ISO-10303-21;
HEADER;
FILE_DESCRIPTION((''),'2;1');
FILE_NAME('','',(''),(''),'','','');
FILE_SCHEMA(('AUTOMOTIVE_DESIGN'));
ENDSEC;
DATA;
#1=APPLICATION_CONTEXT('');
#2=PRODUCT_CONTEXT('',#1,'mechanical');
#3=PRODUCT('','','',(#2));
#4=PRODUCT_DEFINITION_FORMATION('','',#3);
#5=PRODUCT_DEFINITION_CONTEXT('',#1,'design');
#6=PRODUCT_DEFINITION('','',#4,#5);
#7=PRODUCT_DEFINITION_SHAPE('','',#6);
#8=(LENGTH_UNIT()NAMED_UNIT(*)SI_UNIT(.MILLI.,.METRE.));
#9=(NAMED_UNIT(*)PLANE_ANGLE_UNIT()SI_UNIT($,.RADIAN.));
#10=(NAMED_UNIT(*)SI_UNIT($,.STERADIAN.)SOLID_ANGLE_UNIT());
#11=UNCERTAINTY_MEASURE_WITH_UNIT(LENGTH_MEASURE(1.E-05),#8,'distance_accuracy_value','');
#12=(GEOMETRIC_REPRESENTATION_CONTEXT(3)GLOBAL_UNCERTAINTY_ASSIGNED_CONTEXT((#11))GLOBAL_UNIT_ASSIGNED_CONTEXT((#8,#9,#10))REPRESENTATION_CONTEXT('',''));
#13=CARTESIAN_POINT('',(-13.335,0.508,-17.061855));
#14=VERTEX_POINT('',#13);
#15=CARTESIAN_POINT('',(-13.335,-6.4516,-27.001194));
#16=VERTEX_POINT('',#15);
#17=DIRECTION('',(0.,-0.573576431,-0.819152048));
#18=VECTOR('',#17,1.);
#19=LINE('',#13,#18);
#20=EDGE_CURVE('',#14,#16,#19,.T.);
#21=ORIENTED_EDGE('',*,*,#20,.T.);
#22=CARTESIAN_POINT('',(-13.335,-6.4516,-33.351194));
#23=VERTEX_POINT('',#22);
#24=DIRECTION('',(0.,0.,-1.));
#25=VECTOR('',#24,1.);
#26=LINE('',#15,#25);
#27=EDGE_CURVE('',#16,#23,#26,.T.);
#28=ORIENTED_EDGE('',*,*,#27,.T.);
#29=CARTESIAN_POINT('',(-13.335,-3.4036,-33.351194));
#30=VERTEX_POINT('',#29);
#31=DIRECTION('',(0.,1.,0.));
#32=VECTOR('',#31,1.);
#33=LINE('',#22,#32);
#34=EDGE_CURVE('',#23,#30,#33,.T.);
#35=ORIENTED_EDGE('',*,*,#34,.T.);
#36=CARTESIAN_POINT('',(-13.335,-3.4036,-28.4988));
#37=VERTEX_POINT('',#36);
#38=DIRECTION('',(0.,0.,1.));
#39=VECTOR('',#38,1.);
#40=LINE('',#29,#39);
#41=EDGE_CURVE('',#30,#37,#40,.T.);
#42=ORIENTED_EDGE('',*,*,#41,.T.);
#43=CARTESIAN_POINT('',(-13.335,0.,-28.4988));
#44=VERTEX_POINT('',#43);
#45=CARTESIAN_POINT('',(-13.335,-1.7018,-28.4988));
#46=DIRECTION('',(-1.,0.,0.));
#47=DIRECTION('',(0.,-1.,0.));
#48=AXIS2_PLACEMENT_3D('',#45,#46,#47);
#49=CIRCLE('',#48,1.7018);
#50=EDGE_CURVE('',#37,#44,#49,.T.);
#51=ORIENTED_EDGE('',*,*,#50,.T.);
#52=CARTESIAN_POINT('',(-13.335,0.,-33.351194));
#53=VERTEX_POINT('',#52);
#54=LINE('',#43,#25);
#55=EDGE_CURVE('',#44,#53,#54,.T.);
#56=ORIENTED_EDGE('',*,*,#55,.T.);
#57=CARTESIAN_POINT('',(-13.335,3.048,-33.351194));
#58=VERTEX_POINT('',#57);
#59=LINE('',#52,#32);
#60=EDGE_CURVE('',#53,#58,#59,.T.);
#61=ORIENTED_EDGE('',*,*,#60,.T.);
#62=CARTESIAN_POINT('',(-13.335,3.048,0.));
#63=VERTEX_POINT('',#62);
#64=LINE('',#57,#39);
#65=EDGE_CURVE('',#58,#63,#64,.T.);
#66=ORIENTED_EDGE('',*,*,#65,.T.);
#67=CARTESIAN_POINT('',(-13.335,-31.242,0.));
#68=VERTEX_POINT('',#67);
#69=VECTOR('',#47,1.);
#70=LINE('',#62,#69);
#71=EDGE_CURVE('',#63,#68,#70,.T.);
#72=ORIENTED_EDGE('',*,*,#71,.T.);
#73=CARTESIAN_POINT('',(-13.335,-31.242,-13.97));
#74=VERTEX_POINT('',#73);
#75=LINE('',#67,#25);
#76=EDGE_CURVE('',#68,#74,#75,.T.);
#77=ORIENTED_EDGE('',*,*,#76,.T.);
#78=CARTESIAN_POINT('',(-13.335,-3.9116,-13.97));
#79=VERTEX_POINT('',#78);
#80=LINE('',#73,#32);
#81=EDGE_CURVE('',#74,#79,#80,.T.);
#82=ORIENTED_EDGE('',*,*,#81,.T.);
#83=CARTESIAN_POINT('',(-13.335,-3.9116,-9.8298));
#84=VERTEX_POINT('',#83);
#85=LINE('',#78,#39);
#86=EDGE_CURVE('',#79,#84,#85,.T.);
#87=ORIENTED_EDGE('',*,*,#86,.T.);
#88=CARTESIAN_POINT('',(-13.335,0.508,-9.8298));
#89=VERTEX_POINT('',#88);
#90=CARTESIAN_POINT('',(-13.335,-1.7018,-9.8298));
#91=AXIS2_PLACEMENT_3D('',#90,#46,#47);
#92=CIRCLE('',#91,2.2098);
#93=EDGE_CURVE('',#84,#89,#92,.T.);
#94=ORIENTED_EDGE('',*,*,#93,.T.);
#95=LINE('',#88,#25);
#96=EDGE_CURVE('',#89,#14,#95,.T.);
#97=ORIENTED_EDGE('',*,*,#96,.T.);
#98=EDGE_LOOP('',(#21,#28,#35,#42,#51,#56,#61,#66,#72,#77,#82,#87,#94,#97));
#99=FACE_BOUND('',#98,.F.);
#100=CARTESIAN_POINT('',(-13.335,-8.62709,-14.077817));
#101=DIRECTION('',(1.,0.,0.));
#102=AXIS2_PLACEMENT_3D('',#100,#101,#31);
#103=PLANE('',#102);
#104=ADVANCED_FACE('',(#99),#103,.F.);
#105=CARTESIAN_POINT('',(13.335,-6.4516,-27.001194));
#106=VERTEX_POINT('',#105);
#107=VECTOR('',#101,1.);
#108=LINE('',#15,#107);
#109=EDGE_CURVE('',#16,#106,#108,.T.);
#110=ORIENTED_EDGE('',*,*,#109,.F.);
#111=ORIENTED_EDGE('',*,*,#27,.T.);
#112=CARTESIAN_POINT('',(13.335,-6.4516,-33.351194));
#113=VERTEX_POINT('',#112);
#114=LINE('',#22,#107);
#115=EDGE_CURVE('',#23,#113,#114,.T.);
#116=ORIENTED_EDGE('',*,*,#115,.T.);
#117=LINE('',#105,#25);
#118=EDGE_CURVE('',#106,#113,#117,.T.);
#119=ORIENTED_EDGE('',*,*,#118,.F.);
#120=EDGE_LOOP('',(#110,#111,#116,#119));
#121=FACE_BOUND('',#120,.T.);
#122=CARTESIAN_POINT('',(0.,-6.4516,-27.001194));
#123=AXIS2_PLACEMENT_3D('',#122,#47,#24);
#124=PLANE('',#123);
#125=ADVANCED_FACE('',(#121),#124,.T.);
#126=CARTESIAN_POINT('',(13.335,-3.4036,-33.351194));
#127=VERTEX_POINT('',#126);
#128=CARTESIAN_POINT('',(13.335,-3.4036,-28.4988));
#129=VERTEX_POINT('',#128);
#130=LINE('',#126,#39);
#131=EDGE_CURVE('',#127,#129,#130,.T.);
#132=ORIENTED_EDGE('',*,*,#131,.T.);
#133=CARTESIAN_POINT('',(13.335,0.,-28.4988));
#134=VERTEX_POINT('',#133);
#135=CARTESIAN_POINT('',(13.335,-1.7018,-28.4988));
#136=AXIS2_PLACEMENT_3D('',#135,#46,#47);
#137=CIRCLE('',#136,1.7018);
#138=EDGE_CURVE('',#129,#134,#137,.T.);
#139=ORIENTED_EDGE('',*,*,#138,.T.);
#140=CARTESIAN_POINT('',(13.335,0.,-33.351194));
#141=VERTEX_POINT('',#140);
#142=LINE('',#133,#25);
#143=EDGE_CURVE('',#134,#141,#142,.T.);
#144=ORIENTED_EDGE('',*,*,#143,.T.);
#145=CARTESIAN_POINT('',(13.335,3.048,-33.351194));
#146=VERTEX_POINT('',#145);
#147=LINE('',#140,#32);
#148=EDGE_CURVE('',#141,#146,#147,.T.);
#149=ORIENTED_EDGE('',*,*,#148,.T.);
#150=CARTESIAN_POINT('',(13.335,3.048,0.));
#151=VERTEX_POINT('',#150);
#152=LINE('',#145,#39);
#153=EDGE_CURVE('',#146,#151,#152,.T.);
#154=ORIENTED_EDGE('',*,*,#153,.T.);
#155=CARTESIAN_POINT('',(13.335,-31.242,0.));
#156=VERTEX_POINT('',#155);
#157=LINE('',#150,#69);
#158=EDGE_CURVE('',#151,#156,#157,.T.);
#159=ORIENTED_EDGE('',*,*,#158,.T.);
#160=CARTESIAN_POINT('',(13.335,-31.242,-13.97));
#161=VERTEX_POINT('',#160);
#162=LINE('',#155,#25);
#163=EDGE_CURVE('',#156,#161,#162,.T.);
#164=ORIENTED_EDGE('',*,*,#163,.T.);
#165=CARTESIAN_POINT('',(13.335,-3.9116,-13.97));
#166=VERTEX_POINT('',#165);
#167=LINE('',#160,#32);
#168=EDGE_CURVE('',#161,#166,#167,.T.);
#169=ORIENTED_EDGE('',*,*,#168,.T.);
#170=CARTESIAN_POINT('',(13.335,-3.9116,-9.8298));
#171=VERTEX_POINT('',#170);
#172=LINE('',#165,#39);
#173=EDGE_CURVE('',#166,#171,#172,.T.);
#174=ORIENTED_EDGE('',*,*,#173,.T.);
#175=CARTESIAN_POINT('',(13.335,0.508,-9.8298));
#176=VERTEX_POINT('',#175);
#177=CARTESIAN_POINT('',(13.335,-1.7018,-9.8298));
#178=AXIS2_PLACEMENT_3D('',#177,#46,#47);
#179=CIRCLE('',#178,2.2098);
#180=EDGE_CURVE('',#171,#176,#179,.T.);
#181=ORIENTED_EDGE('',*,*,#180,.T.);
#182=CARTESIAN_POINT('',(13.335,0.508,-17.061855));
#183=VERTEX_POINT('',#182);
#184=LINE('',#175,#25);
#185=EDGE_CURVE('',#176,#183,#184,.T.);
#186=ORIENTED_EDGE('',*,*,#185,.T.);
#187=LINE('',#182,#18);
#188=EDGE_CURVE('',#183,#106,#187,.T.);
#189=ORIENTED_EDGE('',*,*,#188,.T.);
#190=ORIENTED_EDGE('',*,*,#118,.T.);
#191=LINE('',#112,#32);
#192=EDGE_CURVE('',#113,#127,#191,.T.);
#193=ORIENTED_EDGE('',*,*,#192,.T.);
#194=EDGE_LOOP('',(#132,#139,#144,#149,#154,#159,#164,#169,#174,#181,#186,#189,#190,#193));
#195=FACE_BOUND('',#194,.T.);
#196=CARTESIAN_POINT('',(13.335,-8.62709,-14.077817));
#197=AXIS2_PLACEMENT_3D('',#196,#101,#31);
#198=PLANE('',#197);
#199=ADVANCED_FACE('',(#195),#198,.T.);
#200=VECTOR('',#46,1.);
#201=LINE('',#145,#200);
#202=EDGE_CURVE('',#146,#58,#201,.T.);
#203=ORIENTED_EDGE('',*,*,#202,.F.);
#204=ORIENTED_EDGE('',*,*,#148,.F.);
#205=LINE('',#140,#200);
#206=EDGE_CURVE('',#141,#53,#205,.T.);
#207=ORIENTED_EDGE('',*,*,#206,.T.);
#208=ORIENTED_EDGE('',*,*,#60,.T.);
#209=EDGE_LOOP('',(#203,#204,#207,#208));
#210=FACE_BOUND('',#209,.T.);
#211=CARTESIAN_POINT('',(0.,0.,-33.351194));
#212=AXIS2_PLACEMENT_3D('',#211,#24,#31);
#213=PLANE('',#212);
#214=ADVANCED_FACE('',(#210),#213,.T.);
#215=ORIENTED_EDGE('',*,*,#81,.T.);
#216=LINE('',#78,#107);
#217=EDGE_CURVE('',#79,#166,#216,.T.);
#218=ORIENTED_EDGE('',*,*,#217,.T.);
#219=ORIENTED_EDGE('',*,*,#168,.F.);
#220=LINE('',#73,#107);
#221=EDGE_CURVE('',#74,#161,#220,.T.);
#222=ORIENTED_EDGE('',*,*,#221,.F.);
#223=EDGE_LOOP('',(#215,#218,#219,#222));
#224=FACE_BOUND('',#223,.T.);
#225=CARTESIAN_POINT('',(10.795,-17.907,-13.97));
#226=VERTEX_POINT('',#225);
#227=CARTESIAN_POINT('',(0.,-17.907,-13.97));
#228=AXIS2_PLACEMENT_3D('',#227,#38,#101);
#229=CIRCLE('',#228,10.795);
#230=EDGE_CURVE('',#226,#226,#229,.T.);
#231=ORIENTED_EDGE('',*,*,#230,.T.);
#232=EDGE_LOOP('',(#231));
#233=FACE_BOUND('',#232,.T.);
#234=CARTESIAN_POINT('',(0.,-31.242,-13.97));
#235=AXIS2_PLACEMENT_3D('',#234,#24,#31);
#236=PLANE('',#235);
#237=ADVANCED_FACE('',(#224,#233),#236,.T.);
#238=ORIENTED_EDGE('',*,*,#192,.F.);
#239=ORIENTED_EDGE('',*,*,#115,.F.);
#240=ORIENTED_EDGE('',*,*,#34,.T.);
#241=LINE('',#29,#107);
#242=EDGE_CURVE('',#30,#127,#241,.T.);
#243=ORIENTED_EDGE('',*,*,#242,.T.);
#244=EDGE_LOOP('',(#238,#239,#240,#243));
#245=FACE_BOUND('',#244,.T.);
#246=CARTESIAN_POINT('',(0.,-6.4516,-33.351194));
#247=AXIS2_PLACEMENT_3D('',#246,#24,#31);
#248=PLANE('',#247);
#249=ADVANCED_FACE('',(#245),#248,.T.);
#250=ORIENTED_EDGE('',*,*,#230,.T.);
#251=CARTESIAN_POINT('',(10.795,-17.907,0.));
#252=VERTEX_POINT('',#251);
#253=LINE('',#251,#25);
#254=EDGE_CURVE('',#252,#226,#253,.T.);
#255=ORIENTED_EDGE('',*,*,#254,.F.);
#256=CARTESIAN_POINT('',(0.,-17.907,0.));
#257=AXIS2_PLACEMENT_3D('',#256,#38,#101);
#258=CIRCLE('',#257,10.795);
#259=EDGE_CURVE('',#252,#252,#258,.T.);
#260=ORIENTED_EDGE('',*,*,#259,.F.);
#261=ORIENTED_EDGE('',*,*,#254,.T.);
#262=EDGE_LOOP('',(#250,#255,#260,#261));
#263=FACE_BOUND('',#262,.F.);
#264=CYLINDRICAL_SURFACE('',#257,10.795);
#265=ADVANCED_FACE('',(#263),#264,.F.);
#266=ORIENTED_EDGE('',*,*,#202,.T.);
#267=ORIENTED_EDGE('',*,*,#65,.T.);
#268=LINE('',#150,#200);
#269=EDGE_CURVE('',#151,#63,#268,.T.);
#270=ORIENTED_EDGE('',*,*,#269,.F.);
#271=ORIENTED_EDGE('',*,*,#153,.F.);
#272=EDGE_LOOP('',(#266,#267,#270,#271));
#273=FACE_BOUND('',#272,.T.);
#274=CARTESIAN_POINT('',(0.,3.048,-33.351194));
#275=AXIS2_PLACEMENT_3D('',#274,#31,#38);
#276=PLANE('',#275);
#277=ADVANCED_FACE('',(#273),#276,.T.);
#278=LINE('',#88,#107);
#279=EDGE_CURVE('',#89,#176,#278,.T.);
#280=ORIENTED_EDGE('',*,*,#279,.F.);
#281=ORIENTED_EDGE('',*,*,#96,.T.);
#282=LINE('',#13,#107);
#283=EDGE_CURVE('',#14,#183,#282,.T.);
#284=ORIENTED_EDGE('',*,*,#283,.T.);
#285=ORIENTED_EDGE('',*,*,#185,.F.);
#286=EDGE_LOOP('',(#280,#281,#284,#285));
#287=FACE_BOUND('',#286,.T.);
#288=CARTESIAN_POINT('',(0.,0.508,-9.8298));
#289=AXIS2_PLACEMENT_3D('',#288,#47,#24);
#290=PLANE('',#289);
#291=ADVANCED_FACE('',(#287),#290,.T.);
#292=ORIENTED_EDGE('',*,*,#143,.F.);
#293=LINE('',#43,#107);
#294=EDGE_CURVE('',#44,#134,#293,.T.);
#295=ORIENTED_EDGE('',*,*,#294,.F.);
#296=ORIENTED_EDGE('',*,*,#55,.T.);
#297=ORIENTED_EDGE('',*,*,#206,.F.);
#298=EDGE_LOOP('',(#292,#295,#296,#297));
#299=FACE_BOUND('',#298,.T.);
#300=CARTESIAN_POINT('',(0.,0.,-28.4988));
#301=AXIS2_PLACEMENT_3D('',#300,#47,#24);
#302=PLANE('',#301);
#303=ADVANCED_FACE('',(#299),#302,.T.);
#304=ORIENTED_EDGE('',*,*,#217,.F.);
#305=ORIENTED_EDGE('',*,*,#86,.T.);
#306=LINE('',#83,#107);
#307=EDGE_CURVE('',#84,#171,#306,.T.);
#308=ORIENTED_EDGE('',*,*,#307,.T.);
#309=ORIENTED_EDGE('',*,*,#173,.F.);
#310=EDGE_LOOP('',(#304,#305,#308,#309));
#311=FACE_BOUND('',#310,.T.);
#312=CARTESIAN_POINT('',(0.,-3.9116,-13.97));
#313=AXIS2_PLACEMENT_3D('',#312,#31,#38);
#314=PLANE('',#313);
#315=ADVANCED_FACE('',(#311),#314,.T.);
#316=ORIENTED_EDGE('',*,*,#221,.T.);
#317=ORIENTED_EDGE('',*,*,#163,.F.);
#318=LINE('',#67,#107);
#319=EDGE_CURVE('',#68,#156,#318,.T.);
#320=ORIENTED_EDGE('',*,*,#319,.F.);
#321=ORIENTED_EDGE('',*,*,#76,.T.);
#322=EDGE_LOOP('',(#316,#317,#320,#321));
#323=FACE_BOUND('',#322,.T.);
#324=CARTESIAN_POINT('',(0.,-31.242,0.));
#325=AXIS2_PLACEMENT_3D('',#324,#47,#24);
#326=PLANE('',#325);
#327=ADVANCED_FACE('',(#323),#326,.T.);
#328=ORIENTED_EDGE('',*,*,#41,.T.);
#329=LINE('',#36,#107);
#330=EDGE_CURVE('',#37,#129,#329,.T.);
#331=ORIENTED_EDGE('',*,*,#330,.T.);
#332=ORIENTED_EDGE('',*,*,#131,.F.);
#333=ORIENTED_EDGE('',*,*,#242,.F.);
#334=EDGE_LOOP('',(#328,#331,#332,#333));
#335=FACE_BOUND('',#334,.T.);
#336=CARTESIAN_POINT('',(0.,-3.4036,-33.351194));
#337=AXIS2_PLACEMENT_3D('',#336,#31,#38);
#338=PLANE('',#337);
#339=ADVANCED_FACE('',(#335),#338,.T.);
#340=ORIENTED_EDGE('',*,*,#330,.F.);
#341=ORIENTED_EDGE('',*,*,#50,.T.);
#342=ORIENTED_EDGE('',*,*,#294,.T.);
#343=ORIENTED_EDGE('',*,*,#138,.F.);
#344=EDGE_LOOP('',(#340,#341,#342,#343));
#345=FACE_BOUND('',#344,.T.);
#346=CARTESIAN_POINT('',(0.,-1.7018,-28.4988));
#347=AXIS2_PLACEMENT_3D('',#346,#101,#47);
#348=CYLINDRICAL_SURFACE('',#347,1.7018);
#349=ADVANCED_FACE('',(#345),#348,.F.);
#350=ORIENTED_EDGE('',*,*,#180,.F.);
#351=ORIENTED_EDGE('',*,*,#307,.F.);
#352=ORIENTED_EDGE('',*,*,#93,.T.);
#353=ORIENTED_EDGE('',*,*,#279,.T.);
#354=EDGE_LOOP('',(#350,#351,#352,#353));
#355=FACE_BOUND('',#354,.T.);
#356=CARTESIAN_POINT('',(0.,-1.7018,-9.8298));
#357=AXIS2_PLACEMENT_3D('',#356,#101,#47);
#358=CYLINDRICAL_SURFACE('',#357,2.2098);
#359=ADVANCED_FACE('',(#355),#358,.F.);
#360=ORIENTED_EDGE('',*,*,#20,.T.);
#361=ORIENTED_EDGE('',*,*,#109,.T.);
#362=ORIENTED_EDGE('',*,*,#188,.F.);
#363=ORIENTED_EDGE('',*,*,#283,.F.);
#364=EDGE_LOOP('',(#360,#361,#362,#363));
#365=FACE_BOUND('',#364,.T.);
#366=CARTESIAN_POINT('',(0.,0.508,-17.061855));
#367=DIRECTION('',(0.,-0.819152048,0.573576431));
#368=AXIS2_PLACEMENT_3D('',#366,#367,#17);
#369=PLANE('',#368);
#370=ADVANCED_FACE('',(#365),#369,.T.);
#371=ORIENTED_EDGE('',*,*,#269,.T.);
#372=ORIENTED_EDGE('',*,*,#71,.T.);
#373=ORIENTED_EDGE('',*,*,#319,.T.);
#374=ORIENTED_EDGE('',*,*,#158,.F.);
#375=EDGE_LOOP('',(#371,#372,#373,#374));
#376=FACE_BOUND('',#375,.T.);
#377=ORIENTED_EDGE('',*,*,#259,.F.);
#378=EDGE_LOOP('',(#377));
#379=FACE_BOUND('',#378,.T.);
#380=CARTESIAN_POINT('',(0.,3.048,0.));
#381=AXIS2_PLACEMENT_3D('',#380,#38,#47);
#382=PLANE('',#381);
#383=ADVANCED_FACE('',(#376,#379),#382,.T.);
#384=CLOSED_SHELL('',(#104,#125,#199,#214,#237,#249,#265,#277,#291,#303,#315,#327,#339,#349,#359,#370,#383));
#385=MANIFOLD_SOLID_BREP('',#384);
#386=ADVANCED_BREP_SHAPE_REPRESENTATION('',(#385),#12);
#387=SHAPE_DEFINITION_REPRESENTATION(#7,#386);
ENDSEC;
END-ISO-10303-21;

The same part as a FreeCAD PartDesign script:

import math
import FreeCAD as App
import Part
import Sketcher
Q = App.Units.Quantity

doc = App.newDocument("Part")
body = doc.addObject("PartDesign::Body", "Body")

# Sketch on YZ plane
sketch1 = body.newObject("Sketcher::SketchObject", "Sketch")
sketch1.AttachmentSupport = (doc.getObject("YZ_Plane"), [""])
sketch1.MapMode = "FlatFace"
sketch1.addGeometry(Part.LineSegment(App.Vector(3.048, 0, 0), App.Vector(-31.242, 0, 0)), False)
sketch1.addGeometry(Part.LineSegment(App.Vector(-31.242, 0, 0), App.Vector(-31.242, -13.97, 0)), False)
sketch1.addGeometry(Part.LineSegment(App.Vector(-31.242, -13.97, 0), App.Vector(-3.9116, -13.97, 0)), False)
sketch1.addGeometry(Part.LineSegment(App.Vector(-3.9116, -13.97, 0), App.Vector(-3.9116, -9.8298, 0)), False)
sketch1.addGeometry(Part.ArcOfCircle(Part.Circle(App.Vector(-1.7018, -9.8298, 0), App.Vector(0, 0, 1), 2.2098), math.radians(0), math.radians(180)), False)
sketch1.addGeometry(Part.LineSegment(App.Vector(0.508, -9.8298, 0), App.Vector(0.508, -17.061855, 0)), False)
sketch1.addGeometry(Part.LineSegment(App.Vector(0.508, -17.061855, 0), App.Vector(-6.4516, -27.001194, 0)), False)
sketch1.addGeometry(Part.LineSegment(App.Vector(-6.4516, -27.001194, 0), App.Vector(-6.4516, -33.351194, 0)), False)
sketch1.addGeometry(Part.LineSegment(App.Vector(-6.4516, -33.351194, 0), App.Vector(-3.4036, -33.351194, 0)), False)
sketch1.addGeometry(Part.LineSegment(App.Vector(-3.4036, -33.351194, 0), App.Vector(-3.4036, -28.4988, 0)), False)
sketch1.addGeometry(Part.ArcOfCircle(Part.Circle(App.Vector(-1.7018, -28.4988, 0), App.Vector(0, 0, 1), 1.7018), math.radians(0), math.radians(180)), False)
sketch1.addGeometry(Part.LineSegment(App.Vector(0, -28.4988, 0), App.Vector(0, -33.351194, 0)), False)
sketch1.addGeometry(Part.LineSegment(App.Vector(0, -33.351194, 0), App.Vector(3.048, -33.351194, 0)), False)
sketch1.addGeometry(Part.LineSegment(App.Vector(3.048, -33.351194, 0), App.Vector(3.048, 0, 0)), False)
sketch1.addConstraint(Sketcher.Constraint("Coincident", 0, 2, 1, 1))
sketch1.addConstraint(Sketcher.Constraint("Coincident", 1, 2, 2, 1))
sketch1.addConstraint(Sketcher.Constraint("Coincident", 2, 2, 3, 1))
sketch1.addConstraint(Sketcher.Constraint("Tangent", 3, 2, 4, 2))
sketch1.addConstraint(Sketcher.Constraint("Tangent", 4, 1, 5, 1))
sketch1.addConstraint(Sketcher.Constraint("Coincident", 5, 2, 6, 1))
sketch1.addConstraint(Sketcher.Constraint("Coincident", 6, 2, 7, 1))
sketch1.addConstraint(Sketcher.Constraint("Coincident", 7, 2, 8, 1))
sketch1.addConstraint(Sketcher.Constraint("Coincident", 8, 2, 9, 1))
sketch1.addConstraint(Sketcher.Constraint("Tangent", 9, 2, 10, 2))
sketch1.addConstraint(Sketcher.Constraint("Tangent", 10, 1, 11, 1))
sketch1.addConstraint(Sketcher.Constraint("Coincident", 11, 2, 12, 1))
sketch1.addConstraint(Sketcher.Constraint("Coincident", 12, 2, 13, 1))
sketch1.addConstraint(Sketcher.Constraint("Coincident", 13, 2, 0, 1))
sketch1.addConstraint(Sketcher.Constraint("Horizontal", 0))
sketch1.addConstraint(Sketcher.Constraint("Vertical", 1))
sketch1.addConstraint(Sketcher.Constraint("Horizontal", 2))
sketch1.addConstraint(Sketcher.Constraint("Vertical", 3))
sketch1.addConstraint(Sketcher.Constraint("Vertical", 5))
sketch1.addConstraint(Sketcher.Constraint("Vertical", 7))
sketch1.addConstraint(Sketcher.Constraint("Horizontal", 8))
sketch1.addConstraint(Sketcher.Constraint("Vertical", 9))
sketch1.addConstraint(Sketcher.Constraint("Vertical", 11))
sketch1.addConstraint(Sketcher.Constraint("Horizontal", 12))
sketch1.addConstraint(Sketcher.Constraint("Vertical", 13))
sketch1.addConstraint(Sketcher.Constraint("PointOnObject", 0, 2, -1))
sketch1.addConstraint(Sketcher.Constraint("PointOnObject", 10, 1, -2))
sketch1.addConstraint(Sketcher.Constraint("Horizontal", 8, 2, 11, 2))
sketch1.addConstraint(Sketcher.Constraint("Vertical", 4, 3, 10, 3))
sketch1.addConstraint(Sketcher.Constraint("Equal", 8, 12))
sketch1.addConstraint(Sketcher.Constraint("Angle", 6, Q("-125 deg")))
sketch1.addConstraint(Sketcher.Constraint("Radius", 4, Q("0.087 in")))
sketch1.addConstraint(Sketcher.Constraint("Radius", 10, Q("0.067 in")))
sketch1.addConstraint(Sketcher.Constraint("DistanceX", 0, 2, 0, 1, Q("1.35 in")))
sketch1.addConstraint(Sketcher.Constraint("DistanceX", 8, 1, 8, 2, Q("0.12 in")))
sketch1.addConstraint(Sketcher.Constraint("DistanceY", 1, 2, 1, 1, Q("0.55 in")))
sketch1.addConstraint(Sketcher.Constraint("DistanceY", 7, 2, 7, 1, Q("0.25 in")))
sketch1.addConstraint(Sketcher.Constraint("DistanceY", 3, 1, 3, 2, Q("0.163 in")))
sketch1.addConstraint(Sketcher.Constraint("DistanceY", 10, 3, -1, 1, Q("1.122 in")))
sketch1.addConstraint(Sketcher.Constraint("DistanceY", 5, 2, 5, 1, Q("7.232055 mm")))
pad1 = body.newObject("PartDesign::Pad", "Pad")
pad1.Profile = sketch1
pad1.Length = Q("1.05 in")
pad1.Midplane = True

# Sketch on XY plane
sketch2 = body.newObject("Sketcher::SketchObject", "Sketch001")
sketch2.AttachmentSupport = (doc.getObject("XY_Plane"), [""])
sketch2.MapMode = "FlatFace"
sketch2.addGeometry(Part.Circle(App.Vector(0, -17.907, 0), App.Vector(0, 0, 1), 10.795), False)
sketch2.addConstraint(Sketcher.Constraint("PointOnObject", 0, 3, -2))
sketch2.addConstraint(Sketcher.Constraint("Diameter", 0, Q("0.85 in")))
sketch2.addConstraint(Sketcher.Constraint("DistanceY", 0, 3, -1, 1, Q("0.705 in")))
pocket1 = body.newObject("PartDesign::Pocket", "Pocket")
pocket1.Profile = sketch2
pocket1.Type = "ThroughAll"

doc.recompute()
